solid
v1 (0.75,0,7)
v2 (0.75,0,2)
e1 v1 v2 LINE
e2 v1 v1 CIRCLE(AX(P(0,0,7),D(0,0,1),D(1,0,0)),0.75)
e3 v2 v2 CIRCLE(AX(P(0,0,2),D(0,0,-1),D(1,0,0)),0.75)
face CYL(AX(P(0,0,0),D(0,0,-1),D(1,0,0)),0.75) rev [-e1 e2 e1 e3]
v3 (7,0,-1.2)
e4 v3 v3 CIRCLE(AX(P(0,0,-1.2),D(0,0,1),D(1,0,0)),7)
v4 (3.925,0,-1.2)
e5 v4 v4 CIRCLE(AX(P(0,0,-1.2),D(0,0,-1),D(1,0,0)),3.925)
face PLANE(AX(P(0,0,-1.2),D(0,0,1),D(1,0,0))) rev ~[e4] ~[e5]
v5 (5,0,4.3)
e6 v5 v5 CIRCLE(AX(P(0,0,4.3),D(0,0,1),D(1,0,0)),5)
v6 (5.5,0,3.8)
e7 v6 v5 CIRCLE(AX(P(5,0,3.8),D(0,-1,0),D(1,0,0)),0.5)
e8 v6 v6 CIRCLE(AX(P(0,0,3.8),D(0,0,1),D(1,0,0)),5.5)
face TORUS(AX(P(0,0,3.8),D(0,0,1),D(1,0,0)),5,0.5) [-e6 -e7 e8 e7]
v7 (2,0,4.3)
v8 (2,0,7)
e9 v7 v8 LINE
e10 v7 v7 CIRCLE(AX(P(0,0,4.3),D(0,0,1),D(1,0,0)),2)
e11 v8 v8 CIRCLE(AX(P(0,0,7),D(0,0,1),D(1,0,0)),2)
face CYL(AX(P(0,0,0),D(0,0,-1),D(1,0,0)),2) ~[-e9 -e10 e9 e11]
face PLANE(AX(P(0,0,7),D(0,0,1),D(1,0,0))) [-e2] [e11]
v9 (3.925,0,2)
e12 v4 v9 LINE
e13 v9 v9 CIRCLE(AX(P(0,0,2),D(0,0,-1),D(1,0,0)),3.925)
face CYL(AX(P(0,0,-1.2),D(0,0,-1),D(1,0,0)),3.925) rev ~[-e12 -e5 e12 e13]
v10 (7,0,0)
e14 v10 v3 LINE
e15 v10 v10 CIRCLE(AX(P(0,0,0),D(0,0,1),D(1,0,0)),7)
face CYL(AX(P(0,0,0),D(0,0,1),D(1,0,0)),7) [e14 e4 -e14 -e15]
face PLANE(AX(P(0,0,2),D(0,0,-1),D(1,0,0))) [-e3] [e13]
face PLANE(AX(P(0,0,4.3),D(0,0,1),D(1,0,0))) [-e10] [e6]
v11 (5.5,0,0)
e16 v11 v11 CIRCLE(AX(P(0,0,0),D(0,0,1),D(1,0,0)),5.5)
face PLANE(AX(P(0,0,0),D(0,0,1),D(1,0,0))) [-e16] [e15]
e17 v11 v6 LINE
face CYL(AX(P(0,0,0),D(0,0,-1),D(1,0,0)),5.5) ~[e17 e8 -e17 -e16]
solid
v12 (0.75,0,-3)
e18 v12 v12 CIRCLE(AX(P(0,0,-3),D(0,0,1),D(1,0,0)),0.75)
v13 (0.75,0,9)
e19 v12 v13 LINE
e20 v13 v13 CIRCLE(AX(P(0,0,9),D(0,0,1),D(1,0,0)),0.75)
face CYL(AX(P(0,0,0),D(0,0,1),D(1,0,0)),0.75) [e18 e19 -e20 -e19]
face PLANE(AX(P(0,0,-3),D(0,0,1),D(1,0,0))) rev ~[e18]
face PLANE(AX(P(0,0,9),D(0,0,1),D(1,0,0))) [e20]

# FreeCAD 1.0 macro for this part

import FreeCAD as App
import Part
import Sketcher

V = App.Vector
Q = App.Units.Quantity


def edges_at(feature, points):
    """Names of the edges that pass closest to the given points."""
    edges = feature.Shape.Edges
    near = lambda p: min(range(len(edges)), key=lambda i: edges[i].distToShape(Part.Vertex(*p))[0])
    return sorted({f"Edge{near(p) + 1}" for p in points})

doc = App.newDocument("Part")
params = doc.addObject("Spreadsheet::Sheet", "Params")
for row, (alias, value) in enumerate([
    ("sketch1_diameter", "14 mm"),
    ("sketch1_diameter2", "1.5 mm"),
    ("pad1_length", "1.2 mm"),
    ("sketch2_diameter", "4 mm"),
    ("sketch2_diameter2", "1.5 mm"),
    ("pad2_length", "7 mm"),
    ("sketch3_diameter", "11 mm"),
    ("sketch3_diameter2", "4 mm"),
    ("pad3_length", "4.3 mm"),
    ("fillet_radius", "0.5 mm"),
    ("sketch4_diameter", "7.85 mm"),
    ("pocket1_length", "3.2 mm"),
    ("sketch5_diameter", "1.5 mm"),
    ("pad4_length", "9 mm"),
    ("pad4_length2", "3 mm"),
], start=1):
    params.set(f"A{row}", alias)
    params.set(f"B{row}", "=" + value)
    params.setAlias(f"B{row}", alias)

body = doc.addObject("PartDesign::Body", "Body")

sketch1 = doc.addObject("Sketcher::SketchObject", "Sketch")
body.addObject(sketch1)
sketch1.AttachmentSupport = (doc.XY_Plane, [""])
sketch1.MapMode = "FlatFace"
sketch1.addGeometry([
    Part.Circle(V(0, 0, 0), V(0, 0, 1), 7),
    Part.Circle(V(0, 0, 0), V(0, 0, 1), 0.8),
], False)
sketch1.addConstraint([
    Sketcher.Constraint("Coincident", 0, 3, -1, 1),
    Sketcher.Constraint("Coincident", 1, 3, -1, 1),
    Sketcher.Constraint("Diameter", 0, Q("14 mm")),
    Sketcher.Constraint("Diameter", 1, Q("1.5 mm")),
])
sketch1.setExpression("Constraints[2]", "Params.sketch1_diameter")
sketch1.setExpression("Constraints[3]", "Params.sketch1_diameter2")
pad1 = doc.addObject("PartDesign::Pad", "Pad")
body.addObject(pad1)
pad1.Profile = sketch1
pad1.setExpression("Length", "Params.pad1_length")
pad1.Reversed = True

sketch2 = doc.addObject("Sketcher::SketchObject", "Sketch001")
body.addObject(sketch2)
sketch2.AttachmentSupport = (doc.XY_Plane, [""])
sketch2.MapMode = "FlatFace"
sketch2.addGeometry([
    Part.Circle(V(0, 0, 0), V(0, 0, 1), 2),
    Part.Circle(V(0, 0, 0), V(0, 0, 1), 0.8),
], False)
sketch2.addConstraint([
    Sketcher.Constraint("Coincident", 0, 3, -1, 1),
    Sketcher.Constraint("Coincident", 1, 3, -1, 1),
    Sketcher.Constraint("Diameter", 0, Q("4 mm")),
    Sketcher.Constraint("Diameter", 1, Q("1.5 mm")),
])
sketch2.setExpression("Constraints[2]", "Params.sketch2_diameter")
sketch2.setExpression("Constraints[3]", "Params.sketch2_diameter2")
pad2 = doc.addObject("PartDesign::Pad", "Pad001")
body.addObject(pad2)
pad2.Profile = sketch2
pad2.setExpression("Length", "Params.pad2_length")

sketch3 = doc.addObject("Sketcher::SketchObject", "Sketch002")
body.addObject(sketch3)
sketch3.AttachmentSupport = (doc.XY_Plane, [""])
sketch3.MapMode = "FlatFace"
sketch3.addGeometry([
    Part.Circle(V(0, 0, 0), V(0, 0, 1), 5.5),
    Part.Circle(V(0, 0, 0), V(0, 0, 1), 2),
], False)
sketch3.addConstraint([
    Sketcher.Constraint("Coincident", 0, 3, -1, 1),
    Sketcher.Constraint("Coincident", 1, 3, -1, 1),
    Sketcher.Constraint("Diameter", 0, Q("11 mm")),
    Sketcher.Constraint("Diameter", 1, Q("4 mm")),
])
sketch3.setExpression("Constraints[2]", "Params.sketch3_diameter")
sketch3.setExpression("Constraints[3]", "Params.sketch3_diameter2")
pad3 = doc.addObject("PartDesign::Pad", "Pad002")
body.addObject(pad3)
pad3.Profile = sketch3
pad3.setExpression("Length", "Params.pad3_length")
doc.recompute()

fillet = doc.addObject("PartDesign::Fillet", "Fillet")
body.addObject(fillet)
fillet.Base = (pad3, edges_at(pad3, [(-5.5, 0, 4.3)]))
fillet.setExpression("Radius", "Params.fillet_radius")

sketch4 = doc.addObject("Sketcher::SketchObject", "Sketch003")
body.addObject(sketch4)
sketch4.AttachmentSupport = (doc.XY_Plane, [""])
sketch4.MapMode = "FlatFace"
sketch4.AttachmentOffset = App.Placement(V(0, 0, -1.2), App.Rotation())
sketch4.addGeometry(Part.Circle(V(0, 0, 0), V(0, 0, 1), 3.9), False)
sketch4.addConstraint([
    Sketcher.Constraint("Coincident", 0, 3, -1, 1),
    Sketcher.Constraint("Diameter", 0, Q("7.85 mm")),
])
sketch4.setExpression("Constraints[1]", "Params.sketch4_diameter")
pocket1 = doc.addObject("PartDesign::Pocket", "Pocket")
body.addObject(pocket1)
pocket1.Profile = sketch4
pocket1.setExpression("Length", "Params.pocket1_length")
pocket1.Reversed = True
body2 = doc.addObject("PartDesign::Body", "Body001")

sketch5 = doc.addObject("Sketcher::SketchObject", "Sketch004")
body2.addObject(sketch5)
sketch5.AttachmentSupport = (doc.getObject("XY_Plane001"), [""])
sketch5.MapMode = "FlatFace"
sketch5.addGeometry(Part.Circle(V(0, 0, 0), V(0, 0, 1), 0.8), False)
sketch5.addConstraint([
    Sketcher.Constraint("Coincident", 0, 3, -1, 1),
    Sketcher.Constraint("Diameter", 0, Q("1.5 mm")),
])
sketch5.setExpression("Constraints[1]", "Params.sketch5_diameter")
pad4 = doc.addObject("PartDesign::Pad", "Pad003")
body2.addObject(pad4)
pad4.Profile = sketch5
pad4.Type = "TwoLengths"
pad4.setExpression("Length", "Params.pad4_length")
pad4.setExpression("Length2", "Params.pad4_length2")

doc.recompute()
